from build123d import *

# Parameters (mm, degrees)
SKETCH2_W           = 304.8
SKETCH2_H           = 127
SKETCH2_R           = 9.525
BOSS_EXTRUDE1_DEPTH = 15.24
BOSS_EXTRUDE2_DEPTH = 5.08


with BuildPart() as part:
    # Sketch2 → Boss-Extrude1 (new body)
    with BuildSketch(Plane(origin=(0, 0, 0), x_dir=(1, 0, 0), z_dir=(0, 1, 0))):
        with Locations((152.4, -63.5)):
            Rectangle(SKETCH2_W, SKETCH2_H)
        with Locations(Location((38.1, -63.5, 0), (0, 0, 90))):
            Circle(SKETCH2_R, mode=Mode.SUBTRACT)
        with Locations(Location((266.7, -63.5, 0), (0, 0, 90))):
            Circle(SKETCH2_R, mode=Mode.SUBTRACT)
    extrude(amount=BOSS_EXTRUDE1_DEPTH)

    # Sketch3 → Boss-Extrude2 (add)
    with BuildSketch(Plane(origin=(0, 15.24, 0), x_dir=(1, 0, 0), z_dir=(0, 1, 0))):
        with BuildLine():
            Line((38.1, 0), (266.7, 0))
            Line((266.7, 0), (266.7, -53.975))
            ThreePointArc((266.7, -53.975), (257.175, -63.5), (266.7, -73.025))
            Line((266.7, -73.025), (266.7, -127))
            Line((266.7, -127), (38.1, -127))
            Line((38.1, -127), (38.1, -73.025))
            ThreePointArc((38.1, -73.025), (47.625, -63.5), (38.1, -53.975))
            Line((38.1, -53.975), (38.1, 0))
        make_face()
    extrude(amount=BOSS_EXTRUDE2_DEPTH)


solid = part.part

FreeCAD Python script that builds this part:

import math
import FreeCAD as App
import Part
import Sketcher

V = App.Vector
Q = App.Units.Quantity

doc = App.newDocument("Part")
body = doc.addObject("PartDesign::Body", "Body")

# Sketch on XZ plane
sketch1 = doc.addObject("Sketcher::SketchObject", "Sketch")
body.addObject(sketch1)
sketch1.AttachmentSupport = (doc.XZ_Plane, [""])
sketch1.MapMode = "FlatFace"
sketch1.addGeometry([
    Part.LineSegment(V(0, 0, 0), V(0, 127, 0)),  # 0
    Part.LineSegment(V(0, 127, 0), V(305, 127, 0)),  # 1
    Part.LineSegment(V(305, 127, 0), V(305, 0, 0)),  # 2
    Part.LineSegment(V(305, 0, 0), V(0, 0, 0)),  # 3
    Part.Circle(V(38, 64, 0), V(0, 0, 1), 10),  # 4
    Part.Circle(V(267, 64, 0), V(0, 0, 1), 10),  # 5
], False)
sketch1.addConstraint([
    Sketcher.Constraint("Coincident", 0, 2, 1, 1),
    Sketcher.Constraint("Coincident", 1, 2, 2, 1),
    Sketcher.Constraint("Coincident", 2, 2, 3, 1),
    Sketcher.Constraint("Coincident", 3, 2, 0, 1),
    Sketcher.Constraint("Vertical", 0),
    Sketcher.Constraint("Horizontal", 1),
    Sketcher.Constraint("Vertical", 2),
    Sketcher.Constraint("Horizontal", 3),
    Sketcher.Constraint("Coincident", 3, 2, -1, 1),
    Sketcher.Constraint("Equal", 4, 5),
    Sketcher.Constraint("Horizontal", 4, 3, 5, 3),
    Sketcher.Constraint("Diameter", 4, Q("0.75 in")),
    Sketcher.Constraint("DistanceX", 1, 1, 1, 2, Q("12 in")),
    Sketcher.Constraint("DistanceY", 0, 1, 0, 2, Q("5 in")),
    Sketcher.Constraint("DistanceX", 4, 3, 5, 3, Q("9 in")),
    Sketcher.Constraint("DistanceX", -1, 1, 4, 3, Q("1.5 in")),
    Sketcher.Constraint("DistanceY", -1, 1, 4, 3, Q("2.5 in")),
])
pad1 = doc.addObject("PartDesign::Pad", "Pad")
body.addObject(pad1)
pad1.Profile = sketch1
pad1.Length = Q("0.6 in")
pad1.Reversed = True

# Sketch on XZ plane
sketch2 = doc.addObject("Sketcher::SketchObject", "Sketch001")
body.addObject(sketch2)
sketch2.AttachmentSupport = (doc.XZ_Plane, [""])
sketch2.MapMode = "FlatFace"
sketch2.AttachmentOffset = App.Placement(V(0, 0, -0.6 * 25.4), App.Rotation())
sketch2.addGeometry([
    Part.LineSegment(V(267, 0, 0), V(38, 0, 0)),  # 0
    Part.LineSegment(V(38, 0, 0), V(38, 54, 0)),  # 1
    Part.ArcOfCircle(Part.Circle(V(38, 64, 0), V(0, 0, 1), 10), math.radians(-90), math.radians(90)),  # 2
    Part.LineSegment(V(38, 73, 0), V(38, 127, 0)),  # 3
    Part.LineSegment(V(38, 127, 0), V(267, 127, 0)),  # 4
    Part.LineSegment(V(267, 127, 0), V(267, 73, 0)),  # 5
    Part.ArcOfCircle(Part.Circle(V(267, 64, 0), V(0, 0, 1), 10), math.radians(90), math.radians(270)),  # 6
    Part.LineSegment(V(267, 54, 0), V(267, 0, 0)),  # 7
], False)
sketch2.addConstraint([
    Sketcher.Constraint("Coincident", 0, 2, 1, 1),
    Sketcher.Constraint("Coincident", 1, 2, 2, 1),
    Sketcher.Constraint("Coincident", 2, 2, 3, 1),
    Sketcher.Constraint("Coincident", 3, 2, 4, 1),
    Sketcher.Constraint("Coincident", 4, 2, 5, 1),
    Sketcher.Constraint("Coincident", 5, 2, 6, 1),
    Sketcher.Constraint("Coincident", 6, 2, 7, 1),
    Sketcher.Constraint("Coincident", 7, 2, 0, 1),
    Sketcher.Constraint("Horizontal", 0),
    Sketcher.Constraint("Vertical", 1),
    Sketcher.Constraint("Vertical", 3),
    Sketcher.Constraint("Horizontal", 4),
    Sketcher.Constraint("Vertical", 5),
    Sketcher.Constraint("Vertical", 7),
    Sketcher.Constraint("Equal", 2, 6),
    Sketcher.Constraint("PointOnObject", 0, 2, -1),
    Sketcher.Constraint("Horizontal", 2, 3, 6, 3),
    Sketcher.Constraint("Vertical", 2, 3, 0, 2),
    Sketcher.Constraint("Vertical", 1, 2, 2, 2),
    Sketcher.Constraint("Vertical", 6, 3, 4, 2),
    Sketcher.Constraint("Vertical", 5, 2, 6, 2),
    Sketcher.Constraint("Equal", 1, 3),
    Sketcher.Constraint("DistanceX", 0, 2, 0, 1, Q("9 in")),
    Sketcher.Constraint("DistanceY", -1, 1, 3, 2, Q("5 in")),
    Sketcher.Constraint("Radius", 2, Q("0.375 in")),
    Sketcher.Constraint("DistanceX", -1, 1, 2, 3, Q("1.5 in")),
])
pad2 = doc.addObject("PartDesign::Pad", "Pad001")
body.addObject(pad2)
pad2.Profile = sketch2
pad2.Length = Q("0.2 in")
pad2.Reversed = True

doc.recompute()
